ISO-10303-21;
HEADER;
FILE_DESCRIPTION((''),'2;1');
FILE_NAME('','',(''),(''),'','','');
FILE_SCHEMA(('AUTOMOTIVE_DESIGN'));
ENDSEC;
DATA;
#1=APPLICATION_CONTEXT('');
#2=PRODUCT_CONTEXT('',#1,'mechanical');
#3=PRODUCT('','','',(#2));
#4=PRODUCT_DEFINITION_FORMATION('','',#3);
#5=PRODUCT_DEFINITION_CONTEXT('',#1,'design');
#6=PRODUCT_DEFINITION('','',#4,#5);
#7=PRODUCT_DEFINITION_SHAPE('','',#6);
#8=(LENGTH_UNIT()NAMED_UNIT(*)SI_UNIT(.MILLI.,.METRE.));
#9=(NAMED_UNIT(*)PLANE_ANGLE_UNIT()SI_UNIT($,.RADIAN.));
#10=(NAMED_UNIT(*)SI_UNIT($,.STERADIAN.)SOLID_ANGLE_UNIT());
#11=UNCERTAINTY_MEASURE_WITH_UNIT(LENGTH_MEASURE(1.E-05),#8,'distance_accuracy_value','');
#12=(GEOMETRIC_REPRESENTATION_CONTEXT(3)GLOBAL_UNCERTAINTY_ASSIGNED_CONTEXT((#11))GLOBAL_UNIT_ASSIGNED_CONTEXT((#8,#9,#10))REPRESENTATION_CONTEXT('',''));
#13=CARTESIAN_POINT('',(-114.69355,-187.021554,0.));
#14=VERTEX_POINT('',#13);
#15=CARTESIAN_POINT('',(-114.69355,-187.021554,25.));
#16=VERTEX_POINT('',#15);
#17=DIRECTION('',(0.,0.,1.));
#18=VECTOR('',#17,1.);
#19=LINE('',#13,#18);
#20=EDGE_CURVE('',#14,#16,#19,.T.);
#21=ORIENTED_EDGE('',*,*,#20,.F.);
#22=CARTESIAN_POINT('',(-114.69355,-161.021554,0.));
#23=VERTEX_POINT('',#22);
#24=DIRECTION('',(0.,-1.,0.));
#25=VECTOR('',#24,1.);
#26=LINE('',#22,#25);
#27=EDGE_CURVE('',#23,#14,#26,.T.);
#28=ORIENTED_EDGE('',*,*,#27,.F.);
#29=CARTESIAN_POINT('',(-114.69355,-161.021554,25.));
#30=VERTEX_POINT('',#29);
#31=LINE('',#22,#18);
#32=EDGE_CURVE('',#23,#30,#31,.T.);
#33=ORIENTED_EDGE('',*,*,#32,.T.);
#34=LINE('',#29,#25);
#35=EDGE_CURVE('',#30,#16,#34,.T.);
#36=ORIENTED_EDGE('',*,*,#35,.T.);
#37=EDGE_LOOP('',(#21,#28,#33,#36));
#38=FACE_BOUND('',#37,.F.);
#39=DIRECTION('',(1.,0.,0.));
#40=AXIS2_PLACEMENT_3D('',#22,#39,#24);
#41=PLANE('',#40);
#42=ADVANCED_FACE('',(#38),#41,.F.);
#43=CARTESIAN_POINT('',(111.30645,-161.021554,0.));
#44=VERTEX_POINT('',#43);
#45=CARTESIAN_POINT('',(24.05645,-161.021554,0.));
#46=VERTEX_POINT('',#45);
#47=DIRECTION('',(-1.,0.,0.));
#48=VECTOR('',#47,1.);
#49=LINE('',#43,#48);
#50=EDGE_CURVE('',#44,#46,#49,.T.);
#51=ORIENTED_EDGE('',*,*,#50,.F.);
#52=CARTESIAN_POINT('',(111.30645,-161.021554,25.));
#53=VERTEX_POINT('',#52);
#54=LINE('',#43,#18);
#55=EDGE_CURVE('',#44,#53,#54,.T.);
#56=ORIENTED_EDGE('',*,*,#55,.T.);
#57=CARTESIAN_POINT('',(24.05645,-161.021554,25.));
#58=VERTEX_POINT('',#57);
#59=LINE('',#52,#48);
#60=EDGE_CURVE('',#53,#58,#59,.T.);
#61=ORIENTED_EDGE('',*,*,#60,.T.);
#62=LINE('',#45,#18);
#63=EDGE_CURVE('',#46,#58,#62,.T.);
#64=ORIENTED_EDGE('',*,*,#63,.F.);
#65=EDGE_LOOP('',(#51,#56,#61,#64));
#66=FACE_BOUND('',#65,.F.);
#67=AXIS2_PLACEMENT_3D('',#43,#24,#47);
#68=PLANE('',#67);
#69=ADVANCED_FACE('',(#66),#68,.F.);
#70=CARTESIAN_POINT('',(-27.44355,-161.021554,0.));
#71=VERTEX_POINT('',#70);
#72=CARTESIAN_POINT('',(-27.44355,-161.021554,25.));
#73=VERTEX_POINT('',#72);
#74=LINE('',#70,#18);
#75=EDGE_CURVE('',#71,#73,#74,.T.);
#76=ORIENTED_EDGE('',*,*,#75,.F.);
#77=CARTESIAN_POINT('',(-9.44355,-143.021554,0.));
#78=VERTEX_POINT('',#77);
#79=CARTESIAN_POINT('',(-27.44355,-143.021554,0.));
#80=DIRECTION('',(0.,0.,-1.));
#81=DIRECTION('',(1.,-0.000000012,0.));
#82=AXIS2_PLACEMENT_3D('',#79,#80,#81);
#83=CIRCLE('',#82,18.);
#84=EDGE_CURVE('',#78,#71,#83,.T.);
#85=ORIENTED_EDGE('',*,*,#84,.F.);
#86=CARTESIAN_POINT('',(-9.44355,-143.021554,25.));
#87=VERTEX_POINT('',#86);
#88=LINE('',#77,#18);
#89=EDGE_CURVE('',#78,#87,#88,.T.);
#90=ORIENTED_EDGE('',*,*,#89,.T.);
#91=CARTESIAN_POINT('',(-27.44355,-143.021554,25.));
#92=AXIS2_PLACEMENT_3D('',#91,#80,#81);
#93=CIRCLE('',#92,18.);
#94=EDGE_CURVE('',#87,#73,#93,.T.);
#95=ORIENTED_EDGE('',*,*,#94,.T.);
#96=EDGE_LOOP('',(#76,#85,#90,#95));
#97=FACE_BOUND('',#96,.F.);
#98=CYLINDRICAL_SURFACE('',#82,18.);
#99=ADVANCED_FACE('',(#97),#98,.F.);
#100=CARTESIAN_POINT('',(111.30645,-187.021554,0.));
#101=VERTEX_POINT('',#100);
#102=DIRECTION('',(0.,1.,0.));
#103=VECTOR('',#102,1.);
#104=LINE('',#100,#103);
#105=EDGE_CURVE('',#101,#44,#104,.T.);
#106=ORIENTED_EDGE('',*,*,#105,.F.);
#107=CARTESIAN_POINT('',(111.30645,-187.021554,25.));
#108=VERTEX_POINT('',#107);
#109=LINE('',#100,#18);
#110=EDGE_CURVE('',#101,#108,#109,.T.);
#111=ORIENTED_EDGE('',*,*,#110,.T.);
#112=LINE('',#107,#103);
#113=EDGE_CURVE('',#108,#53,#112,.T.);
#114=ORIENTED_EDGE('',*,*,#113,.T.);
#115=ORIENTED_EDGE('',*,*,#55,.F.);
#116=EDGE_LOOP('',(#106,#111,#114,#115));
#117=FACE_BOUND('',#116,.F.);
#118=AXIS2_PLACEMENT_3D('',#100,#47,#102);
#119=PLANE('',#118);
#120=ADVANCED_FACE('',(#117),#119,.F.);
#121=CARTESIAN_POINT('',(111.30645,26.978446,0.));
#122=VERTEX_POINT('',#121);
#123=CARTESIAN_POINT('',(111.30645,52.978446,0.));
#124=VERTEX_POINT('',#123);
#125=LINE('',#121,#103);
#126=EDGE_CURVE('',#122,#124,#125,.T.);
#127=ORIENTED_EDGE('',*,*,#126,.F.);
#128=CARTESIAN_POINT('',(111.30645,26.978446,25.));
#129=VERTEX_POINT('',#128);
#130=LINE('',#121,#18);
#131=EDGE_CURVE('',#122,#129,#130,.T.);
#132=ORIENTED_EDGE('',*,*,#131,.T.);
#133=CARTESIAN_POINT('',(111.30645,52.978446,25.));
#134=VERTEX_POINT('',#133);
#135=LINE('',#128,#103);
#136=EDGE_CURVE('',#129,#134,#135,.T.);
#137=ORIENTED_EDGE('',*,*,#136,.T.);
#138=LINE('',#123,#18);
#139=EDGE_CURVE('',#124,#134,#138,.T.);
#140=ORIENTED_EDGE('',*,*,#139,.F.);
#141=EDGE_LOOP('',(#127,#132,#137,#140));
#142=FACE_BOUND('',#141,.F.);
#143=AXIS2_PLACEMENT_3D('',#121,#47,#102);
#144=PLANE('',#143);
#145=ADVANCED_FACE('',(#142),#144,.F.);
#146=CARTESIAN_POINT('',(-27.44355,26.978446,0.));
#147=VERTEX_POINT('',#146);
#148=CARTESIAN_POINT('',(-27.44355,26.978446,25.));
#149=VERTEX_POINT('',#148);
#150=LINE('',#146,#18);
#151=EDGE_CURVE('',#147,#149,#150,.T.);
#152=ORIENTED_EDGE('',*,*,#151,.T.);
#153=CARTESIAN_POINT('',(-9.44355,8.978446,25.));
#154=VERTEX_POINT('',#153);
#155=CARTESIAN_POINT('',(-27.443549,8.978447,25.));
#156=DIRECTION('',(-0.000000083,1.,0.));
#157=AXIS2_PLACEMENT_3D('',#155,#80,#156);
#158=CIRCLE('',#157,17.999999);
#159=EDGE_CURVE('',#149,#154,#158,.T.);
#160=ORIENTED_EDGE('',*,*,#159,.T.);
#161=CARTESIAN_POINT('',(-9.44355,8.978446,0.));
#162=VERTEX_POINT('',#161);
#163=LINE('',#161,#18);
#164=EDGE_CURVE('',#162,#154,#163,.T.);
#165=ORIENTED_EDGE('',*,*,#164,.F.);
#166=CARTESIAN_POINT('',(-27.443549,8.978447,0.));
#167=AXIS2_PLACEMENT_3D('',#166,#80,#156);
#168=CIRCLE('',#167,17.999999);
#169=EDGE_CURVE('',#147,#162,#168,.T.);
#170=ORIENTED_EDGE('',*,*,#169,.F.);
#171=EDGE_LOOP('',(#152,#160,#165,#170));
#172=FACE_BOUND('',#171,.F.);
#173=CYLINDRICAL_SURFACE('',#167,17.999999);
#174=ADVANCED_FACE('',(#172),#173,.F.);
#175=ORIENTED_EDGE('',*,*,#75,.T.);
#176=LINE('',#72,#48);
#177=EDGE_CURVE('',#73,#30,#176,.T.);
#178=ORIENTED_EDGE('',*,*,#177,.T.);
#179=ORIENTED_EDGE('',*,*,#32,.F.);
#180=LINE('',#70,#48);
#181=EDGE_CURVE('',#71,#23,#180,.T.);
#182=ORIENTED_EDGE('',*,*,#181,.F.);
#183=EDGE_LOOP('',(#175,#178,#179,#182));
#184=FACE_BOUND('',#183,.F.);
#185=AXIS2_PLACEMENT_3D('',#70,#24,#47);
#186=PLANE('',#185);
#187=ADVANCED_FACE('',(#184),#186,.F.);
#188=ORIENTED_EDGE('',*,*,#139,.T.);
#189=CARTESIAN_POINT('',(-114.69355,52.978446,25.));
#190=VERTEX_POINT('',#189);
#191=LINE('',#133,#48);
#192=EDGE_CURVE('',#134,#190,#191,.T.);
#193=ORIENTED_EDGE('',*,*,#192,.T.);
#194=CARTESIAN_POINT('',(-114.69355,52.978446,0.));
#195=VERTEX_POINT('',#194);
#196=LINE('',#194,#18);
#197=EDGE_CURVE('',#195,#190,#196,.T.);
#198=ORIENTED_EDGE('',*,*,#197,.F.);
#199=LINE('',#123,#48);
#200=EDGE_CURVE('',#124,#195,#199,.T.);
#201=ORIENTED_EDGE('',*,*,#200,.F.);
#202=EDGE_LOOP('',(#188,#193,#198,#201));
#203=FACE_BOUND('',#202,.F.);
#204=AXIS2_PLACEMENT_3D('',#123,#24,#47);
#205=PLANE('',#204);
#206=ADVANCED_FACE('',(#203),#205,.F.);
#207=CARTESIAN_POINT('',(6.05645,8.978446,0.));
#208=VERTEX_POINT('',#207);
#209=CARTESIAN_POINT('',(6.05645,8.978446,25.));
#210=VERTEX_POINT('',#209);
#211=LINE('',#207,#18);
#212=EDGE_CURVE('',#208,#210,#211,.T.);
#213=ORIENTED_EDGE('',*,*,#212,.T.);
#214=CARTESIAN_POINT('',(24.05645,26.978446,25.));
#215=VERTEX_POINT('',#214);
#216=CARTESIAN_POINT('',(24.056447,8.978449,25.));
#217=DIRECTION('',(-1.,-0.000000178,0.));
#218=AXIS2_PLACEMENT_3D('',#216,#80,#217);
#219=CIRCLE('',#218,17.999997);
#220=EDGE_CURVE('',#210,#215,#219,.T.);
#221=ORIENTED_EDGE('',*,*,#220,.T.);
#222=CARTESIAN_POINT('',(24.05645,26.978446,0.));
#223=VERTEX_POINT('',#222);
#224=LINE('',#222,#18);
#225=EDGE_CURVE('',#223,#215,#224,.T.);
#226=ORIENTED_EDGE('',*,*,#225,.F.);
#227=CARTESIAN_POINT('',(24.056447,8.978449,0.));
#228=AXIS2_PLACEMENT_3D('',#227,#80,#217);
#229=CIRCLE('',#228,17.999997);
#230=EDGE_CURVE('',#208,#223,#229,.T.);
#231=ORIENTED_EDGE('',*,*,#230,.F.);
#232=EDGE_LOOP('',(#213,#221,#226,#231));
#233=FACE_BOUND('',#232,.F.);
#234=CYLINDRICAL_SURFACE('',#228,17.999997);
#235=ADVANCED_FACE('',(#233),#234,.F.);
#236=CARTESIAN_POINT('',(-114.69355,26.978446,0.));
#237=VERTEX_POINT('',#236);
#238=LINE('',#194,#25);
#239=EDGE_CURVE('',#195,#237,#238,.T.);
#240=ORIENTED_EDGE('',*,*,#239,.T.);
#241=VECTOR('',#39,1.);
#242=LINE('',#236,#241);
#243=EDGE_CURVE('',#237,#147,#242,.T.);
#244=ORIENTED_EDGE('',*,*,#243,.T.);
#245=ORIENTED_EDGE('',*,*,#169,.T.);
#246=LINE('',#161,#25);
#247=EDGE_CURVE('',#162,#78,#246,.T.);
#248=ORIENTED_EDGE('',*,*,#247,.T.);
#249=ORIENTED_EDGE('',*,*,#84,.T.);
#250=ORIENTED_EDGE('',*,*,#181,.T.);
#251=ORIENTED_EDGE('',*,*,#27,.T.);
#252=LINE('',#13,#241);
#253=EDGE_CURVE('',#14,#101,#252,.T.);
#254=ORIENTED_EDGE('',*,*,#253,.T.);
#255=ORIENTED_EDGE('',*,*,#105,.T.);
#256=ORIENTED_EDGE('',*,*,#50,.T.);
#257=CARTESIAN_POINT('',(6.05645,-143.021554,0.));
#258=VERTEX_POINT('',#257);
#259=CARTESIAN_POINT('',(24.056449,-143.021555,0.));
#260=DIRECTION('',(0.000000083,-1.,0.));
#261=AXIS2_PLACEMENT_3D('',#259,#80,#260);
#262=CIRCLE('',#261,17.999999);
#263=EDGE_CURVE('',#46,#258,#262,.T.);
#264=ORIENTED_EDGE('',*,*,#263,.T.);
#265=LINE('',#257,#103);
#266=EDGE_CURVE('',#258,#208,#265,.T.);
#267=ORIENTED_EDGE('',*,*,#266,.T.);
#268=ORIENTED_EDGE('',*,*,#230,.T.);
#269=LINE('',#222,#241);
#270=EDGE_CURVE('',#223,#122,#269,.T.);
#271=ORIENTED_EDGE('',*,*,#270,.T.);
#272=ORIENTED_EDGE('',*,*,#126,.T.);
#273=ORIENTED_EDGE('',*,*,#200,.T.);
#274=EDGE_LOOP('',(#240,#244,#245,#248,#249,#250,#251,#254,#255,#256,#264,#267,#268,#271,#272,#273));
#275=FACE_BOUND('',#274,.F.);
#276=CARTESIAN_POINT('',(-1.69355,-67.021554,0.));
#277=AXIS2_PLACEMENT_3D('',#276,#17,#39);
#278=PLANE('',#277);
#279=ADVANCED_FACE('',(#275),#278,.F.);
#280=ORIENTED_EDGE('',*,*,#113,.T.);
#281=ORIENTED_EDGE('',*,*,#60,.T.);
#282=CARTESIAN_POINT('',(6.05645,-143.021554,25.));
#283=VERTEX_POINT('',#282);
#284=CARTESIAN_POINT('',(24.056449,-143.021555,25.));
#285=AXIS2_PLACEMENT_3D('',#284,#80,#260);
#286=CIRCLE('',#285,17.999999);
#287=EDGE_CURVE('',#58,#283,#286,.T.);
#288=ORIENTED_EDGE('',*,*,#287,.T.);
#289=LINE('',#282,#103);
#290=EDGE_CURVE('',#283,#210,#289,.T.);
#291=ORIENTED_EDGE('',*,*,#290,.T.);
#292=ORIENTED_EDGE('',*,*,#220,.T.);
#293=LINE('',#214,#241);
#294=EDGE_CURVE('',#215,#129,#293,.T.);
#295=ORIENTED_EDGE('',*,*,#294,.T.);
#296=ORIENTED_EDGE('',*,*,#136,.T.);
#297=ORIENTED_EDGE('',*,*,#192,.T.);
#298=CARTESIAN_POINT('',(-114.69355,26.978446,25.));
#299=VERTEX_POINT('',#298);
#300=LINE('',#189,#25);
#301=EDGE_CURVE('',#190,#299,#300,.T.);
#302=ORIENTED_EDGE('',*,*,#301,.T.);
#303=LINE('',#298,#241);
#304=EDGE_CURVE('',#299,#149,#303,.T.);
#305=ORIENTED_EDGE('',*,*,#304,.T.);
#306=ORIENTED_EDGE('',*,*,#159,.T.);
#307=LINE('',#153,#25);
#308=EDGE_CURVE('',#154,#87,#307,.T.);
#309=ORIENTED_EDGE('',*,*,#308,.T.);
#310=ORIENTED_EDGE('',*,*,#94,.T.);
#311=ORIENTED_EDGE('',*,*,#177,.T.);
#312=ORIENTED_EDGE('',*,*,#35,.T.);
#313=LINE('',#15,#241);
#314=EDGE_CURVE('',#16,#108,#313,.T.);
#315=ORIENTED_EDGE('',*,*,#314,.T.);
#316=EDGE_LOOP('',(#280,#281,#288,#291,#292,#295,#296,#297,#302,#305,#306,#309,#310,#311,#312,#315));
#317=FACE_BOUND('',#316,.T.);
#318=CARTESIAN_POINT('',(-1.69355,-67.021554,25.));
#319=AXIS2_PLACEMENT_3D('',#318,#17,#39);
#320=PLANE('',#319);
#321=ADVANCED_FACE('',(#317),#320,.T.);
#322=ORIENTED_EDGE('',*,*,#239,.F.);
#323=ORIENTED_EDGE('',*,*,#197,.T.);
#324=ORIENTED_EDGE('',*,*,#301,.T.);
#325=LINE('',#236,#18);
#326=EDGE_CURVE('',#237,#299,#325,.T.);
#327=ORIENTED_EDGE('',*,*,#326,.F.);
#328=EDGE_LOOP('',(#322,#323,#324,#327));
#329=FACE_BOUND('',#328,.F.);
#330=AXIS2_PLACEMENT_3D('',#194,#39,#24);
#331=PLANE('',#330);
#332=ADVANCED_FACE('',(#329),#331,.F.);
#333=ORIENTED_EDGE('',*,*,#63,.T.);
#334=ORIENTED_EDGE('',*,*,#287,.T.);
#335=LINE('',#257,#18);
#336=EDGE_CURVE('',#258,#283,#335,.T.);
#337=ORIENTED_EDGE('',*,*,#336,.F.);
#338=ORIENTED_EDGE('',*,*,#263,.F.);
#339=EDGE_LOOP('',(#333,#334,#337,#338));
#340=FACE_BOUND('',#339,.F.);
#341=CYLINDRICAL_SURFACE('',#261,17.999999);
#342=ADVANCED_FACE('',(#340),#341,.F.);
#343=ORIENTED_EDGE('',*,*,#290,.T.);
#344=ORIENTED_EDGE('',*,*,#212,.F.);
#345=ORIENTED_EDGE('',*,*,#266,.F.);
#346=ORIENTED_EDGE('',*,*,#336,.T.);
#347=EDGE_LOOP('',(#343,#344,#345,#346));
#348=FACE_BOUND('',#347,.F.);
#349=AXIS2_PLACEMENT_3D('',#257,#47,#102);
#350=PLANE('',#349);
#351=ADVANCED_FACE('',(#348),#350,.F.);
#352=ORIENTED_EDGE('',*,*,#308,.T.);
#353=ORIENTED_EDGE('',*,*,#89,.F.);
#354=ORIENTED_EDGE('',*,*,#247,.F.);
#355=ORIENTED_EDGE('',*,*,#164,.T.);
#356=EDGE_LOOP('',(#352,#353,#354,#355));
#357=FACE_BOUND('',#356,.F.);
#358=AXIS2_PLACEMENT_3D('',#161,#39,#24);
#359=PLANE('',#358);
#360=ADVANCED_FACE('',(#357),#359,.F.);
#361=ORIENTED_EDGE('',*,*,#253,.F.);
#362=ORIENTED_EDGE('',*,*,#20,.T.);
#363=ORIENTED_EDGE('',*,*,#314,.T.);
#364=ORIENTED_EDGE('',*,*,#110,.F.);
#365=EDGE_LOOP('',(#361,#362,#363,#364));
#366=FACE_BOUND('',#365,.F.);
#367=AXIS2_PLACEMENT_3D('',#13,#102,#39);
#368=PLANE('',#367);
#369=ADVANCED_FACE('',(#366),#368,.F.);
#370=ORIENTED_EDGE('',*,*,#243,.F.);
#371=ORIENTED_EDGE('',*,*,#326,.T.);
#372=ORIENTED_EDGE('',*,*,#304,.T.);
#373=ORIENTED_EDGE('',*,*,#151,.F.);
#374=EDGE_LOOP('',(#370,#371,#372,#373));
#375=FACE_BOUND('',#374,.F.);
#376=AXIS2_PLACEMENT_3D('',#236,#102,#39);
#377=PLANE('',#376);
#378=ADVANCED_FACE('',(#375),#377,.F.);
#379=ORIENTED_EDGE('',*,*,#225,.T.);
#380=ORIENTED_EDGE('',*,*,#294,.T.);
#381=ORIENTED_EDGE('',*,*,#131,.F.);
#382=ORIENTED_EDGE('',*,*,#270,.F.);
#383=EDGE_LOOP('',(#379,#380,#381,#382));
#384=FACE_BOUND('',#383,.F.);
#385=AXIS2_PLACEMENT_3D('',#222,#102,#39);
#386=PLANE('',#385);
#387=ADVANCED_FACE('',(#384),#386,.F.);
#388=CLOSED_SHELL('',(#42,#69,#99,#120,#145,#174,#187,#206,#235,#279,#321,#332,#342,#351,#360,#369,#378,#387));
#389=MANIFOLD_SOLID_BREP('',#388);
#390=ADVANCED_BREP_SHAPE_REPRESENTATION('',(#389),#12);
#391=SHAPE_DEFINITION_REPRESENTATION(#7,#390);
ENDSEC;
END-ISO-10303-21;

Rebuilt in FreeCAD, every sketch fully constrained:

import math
import FreeCAD as App
import Part
import Sketcher
from FreeCAD import Vector

doc = App.newDocument("Part")
params = doc.addObject("Spreadsheet::Sheet", "Params")
for row, (alias, value) in enumerate([
    ("sketch1_radius", "17.999999 mm"),
    ("sketch1_width", "226 mm"),
    ("sketch1_height", "26 mm"),
    ("sketch1_height2", "152 mm"),
    ("sketch1_width2", "87.25 mm"),
    ("pad1_length", "25 mm"),
], start=1):
    params.set(f"A{row}", alias)
    params.set(f"B{row}", "=" + value)
    params.setAlias(f"B{row}", alias)

body = doc.addObject("PartDesign::Body", "Body")

# Sketch on XY plane
sketch1 = body.newObject("Sketcher::SketchObject", "Sketch")
sketch1.AttachmentSupport = (doc.getObject("XY_Plane"), [""])
sketch1.MapMode = "FlatFace"
sketch1.addGeometry([
    Part.LineSegment(Vector(111.30645, 52.978446, 0), Vector(-114.69355, 52.978446, 0)),  # 0
    Part.LineSegment(Vector(-114.69355, 52.978446, 0), Vector(-114.69355, 26.978446, 0)),  # 1
    Part.LineSegment(Vector(-114.69355, 26.978446, 0), Vector(-27.44355, 26.978446, 0)),  # 2
    Part.ArcOfCircle(Part.Circle(Vector(-27.443549, 8.978447, 0), Vector(0, 0, 1), 17.999999), math.radians(-0.000005), math.radians(90.000005)),  # 3
    Part.LineSegment(Vector(-9.44355, 8.978446, 0), Vector(-9.44355, -143.021554, 0)),  # 4
    Part.ArcOfCircle(Part.Circle(Vector(-27.44355, -143.021554, 0), Vector(0, 0, 1), 18), math.radians(-89.999999), math.radians(-0.000001)),  # 5
    Part.LineSegment(Vector(-27.44355, -161.021554, 0), Vector(-114.69355, -161.021554, 0)),  # 6
    Part.LineSegment(Vector(-114.69355, -161.021554, 0), Vector(-114.69355, -187.021554, 0)),  # 7
    Part.LineSegment(Vector(-114.69355, -187.021554, 0), Vector(111.30645, -187.021554, 0)),  # 8
    Part.LineSegment(Vector(111.30645, -187.021554, 0), Vector(111.30645, -161.021554, 0)),  # 9
    Part.LineSegment(Vector(111.30645, -161.021554, 0), Vector(24.05645, -161.021554, 0)),  # 10
    Part.ArcOfCircle(Part.Circle(Vector(24.056449, -143.021555, 0), Vector(0, 0, 1), 17.999999), math.radians(179.999995), math.radians(270.000005)),  # 11
    Part.LineSegment(Vector(6.05645, -143.021554, 0), Vector(6.05645, 8.978446, 0)),  # 12
    Part.ArcOfCircle(Part.Circle(Vector(24.056447, 8.978449, 0), Vector(0, 0, 1), 17.999997), math.radians(89.99999), math.radians(180.00001)),  # 13
    Part.LineSegment(Vector(24.05645, 26.978446, 0), Vector(111.30645, 26.978446, 0)),  # 14
    Part.LineSegment(Vector(111.30645, 26.978446, 0), Vector(111.30645, 52.978446, 0)),  # 15
], False)
sketch1.addConstraint([
    Sketcher.Constraint("Coincident", 0, 2, 1, 1),
    Sketcher.Constraint("Coincident", 1, 2, 2, 1),
    Sketcher.Constraint("Tangent", 2, 2, 3, 2),
    Sketcher.Constraint("Tangent", 3, 1, 4, 1),
    Sketcher.Constraint("Tangent", 4, 2, 5, 2),
    Sketcher.Constraint("Tangent", 5, 1, 6, 1),
    Sketcher.Constraint("Coincident", 6, 2, 7, 1),
    Sketcher.Constraint("Coincident", 7, 2, 8, 1),
    Sketcher.Constraint("Coincident", 8, 2, 9, 1),
    Sketcher.Constraint("Coincident", 9, 2, 10, 1),
    Sketcher.Constraint("Tangent", 10, 2, 11, 2),
    Sketcher.Constraint("Tangent", 11, 1, 12, 1),
    Sketcher.Constraint("Tangent", 12, 2, 13, 2),
    Sketcher.Constraint("Tangent", 13, 1, 14, 1),
    Sketcher.Constraint("Coincident", 14, 2, 15, 1),
    Sketcher.Constraint("Coincident", 15, 2, 0, 1),
    Sketcher.Constraint("Horizontal", 0),
    Sketcher.Constraint("Vertical", 1),
    Sketcher.Constraint("Horizontal", 2),
    Sketcher.Constraint("Vertical", 4),
    Sketcher.Constraint("Horizontal", 6),
    Sketcher.Constraint("Vertical", 7),
    Sketcher.Constraint("Horizontal", 8),
    Sketcher.Constraint("Vertical", 9),
    Sketcher.Constraint("Horizontal", 10),
    Sketcher.Constraint("Vertical", 12),
    Sketcher.Constraint("Horizontal", 14),
    Sketcher.Constraint("Vertical", 15),
    Sketcher.Constraint("Equal", 3, 5),
    Sketcher.Constraint("Equal", 5, 11),
    Sketcher.Constraint("Equal", 11, 13),
    Sketcher.Constraint("Horizontal", 5, 3, 11, 3),
    Sketcher.Constraint("Horizontal", 3, 3, 13, 3),
    Sketcher.Constraint("Vertical", 1, 2, 6, 2),
    Sketcher.Constraint("Vertical", 9, 2, 14, 2),
    Sketcher.Constraint("Equal", 6, 10),
    Sketcher.Constraint("Equal", 1, 7),
    Sketcher.Constraint("Radius", 3, 17.999999),
    Sketcher.Constraint("DistanceX", 0, 2, 0, 1, 226.0),
    Sketcher.Constraint("DistanceY", 1, 2, 1, 1, 26.0),
    Sketcher.Constraint("DistanceY", 4, 2, 4, 1, 152.0),
    Sketcher.Constraint("DistanceX", 2, 1, 2, 2, 87.25),
    Sketcher.Constraint("DistanceX", 3, 3, -1, 1, 27.443549),
    Sketcher.Constraint("DistanceY", -1, 1, 13, 3, 8.978449),
])
sketch1.setExpression("Constraints[37]", "Params.sketch1_radius")
sketch1.setExpression("Constraints[38]", "Params.sketch1_width")
sketch1.setExpression("Constraints[39]", "Params.sketch1_height")
sketch1.setExpression("Constraints[40]", "Params.sketch1_height2")
sketch1.setExpression("Constraints[41]", "Params.sketch1_width2")
pad1 = body.newObject("PartDesign::Pad", "Pad")
pad1.Profile = sketch1
pad1.setExpression("Length", "Params.pad1_length")

doc.recompute()
